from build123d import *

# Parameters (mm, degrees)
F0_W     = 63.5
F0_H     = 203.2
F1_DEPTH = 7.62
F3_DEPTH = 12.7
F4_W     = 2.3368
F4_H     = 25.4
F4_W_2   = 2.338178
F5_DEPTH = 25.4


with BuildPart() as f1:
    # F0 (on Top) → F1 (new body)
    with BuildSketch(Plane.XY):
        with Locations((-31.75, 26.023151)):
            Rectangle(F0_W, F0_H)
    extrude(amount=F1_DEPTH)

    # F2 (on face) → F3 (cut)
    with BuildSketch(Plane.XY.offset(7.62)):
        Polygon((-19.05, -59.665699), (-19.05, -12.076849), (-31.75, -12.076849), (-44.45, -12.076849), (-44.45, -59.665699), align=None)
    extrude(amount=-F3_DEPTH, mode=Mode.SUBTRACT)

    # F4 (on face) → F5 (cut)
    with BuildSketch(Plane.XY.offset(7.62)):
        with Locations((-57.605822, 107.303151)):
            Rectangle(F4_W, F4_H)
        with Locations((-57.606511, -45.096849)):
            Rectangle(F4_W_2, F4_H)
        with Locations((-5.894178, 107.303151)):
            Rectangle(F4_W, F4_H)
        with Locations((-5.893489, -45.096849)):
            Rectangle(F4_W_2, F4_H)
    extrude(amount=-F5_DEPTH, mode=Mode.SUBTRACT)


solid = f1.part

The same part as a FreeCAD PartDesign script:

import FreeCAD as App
import Part
import Sketcher

V = App.Vector
Q = App.Units.Quantity

doc = App.newDocument("Part")
body = doc.addObject("PartDesign::Body", "Body")

# Sketch on XY plane
sketch1 = body.newObject("Sketcher::SketchObject", "Sketch")
sketch1.AttachmentSupport = (doc.getObject("XY_Plane"), [""])
sketch1.MapMode = "FlatFace"
sketch1.addGeometry([
    Part.LineSegment(V(-64, 128, 0), V(-64, -76, 0)),
    Part.LineSegment(V(-64, -76, 0), V(0, -76, 0)),
    Part.LineSegment(V(0, -76, 0), V(0, 128, 0)),
    Part.LineSegment(V(0, 128, 0), V(-64, 128, 0)),
], False)
sketch1.addConstraint([
    Sketcher.Constraint("Coincident", 0, 2, 1, 1),
    Sketcher.Constraint("Coincident", 1, 2, 2, 1),
    Sketcher.Constraint("Coincident", 2, 2, 3, 1),
    Sketcher.Constraint("Coincident", 3, 2, 0, 1),
    Sketcher.Constraint("Vertical", 0),
    Sketcher.Constraint("Horizontal", 1),
    Sketcher.Constraint("Vertical", 2),
    Sketcher.Constraint("Horizontal", 3),
    Sketcher.Constraint("PointOnObject", 1, 2, -2),
    Sketcher.Constraint("DistanceY", 0, 2, 0, 1, Q("8 in")),
    Sketcher.Constraint("DistanceX", 1, 1, 1, 2, Q("2.5 in")),
    Sketcher.Constraint("DistanceY", 0, 2, -1, 1, 75.576849),
])
pad1 = body.newObject("PartDesign::Pad", "Pad")
pad1.Profile = sketch1
pad1.Length = Q("0.3 in")

# Sketch on XY plane
sketch2 = body.newObject("Sketcher::SketchObject", "Sketch001")
sketch2.AttachmentSupport = (doc.getObject("XY_Plane"), [""])
sketch2.MapMode = "FlatFace"
sketch2.AttachmentOffset = App.Placement(V(0, 0, 0.3 * 25.4), App.Rotation())
sketch2.addGeometry([
    Part.LineSegment(V(-19, -60, 0), V(-19, -12, 0)),
    Part.LineSegment(V(-19, -12, 0), V(-44, -12, 0)),
    Part.LineSegment(V(-44, -12, 0), V(-44, -60, 0)),
    Part.LineSegment(V(-44, -60, 0), V(-19, -60, 0)),
], False)
sketch2.addConstraint([
    Sketcher.Constraint("Coincident", 0, 2, 1, 1),
    Sketcher.Constraint("Coincident", 1, 2, 2, 1),
    Sketcher.Constraint("Coincident", 2, 2, 3, 1),
    Sketcher.Constraint("Coincident", 3, 2, 0, 1),
    Sketcher.Constraint("Vertical", 0),
    Sketcher.Constraint("Horizontal", 1),
    Sketcher.Constraint("Vertical", 2),
    Sketcher.Constraint("Horizontal", 3),
    Sketcher.Constraint("DistanceX", 1, 2, 1, 1, Q("1 in")),
    Sketcher.Constraint("DistanceX", 0, 2, -1, 1, Q("0.75 in")),
    Sketcher.Constraint("DistanceY", 0, 1, 0, 2, 47.58885),
    Sketcher.Constraint("DistanceY", 2, 2, -1, 1, 59.665699),
])
pocket1 = body.newObject("PartDesign::Pocket", "Pocket")
pocket1.Profile = sketch2
pocket1.Length = Q("0.5 in")

# Sketch on XY plane
sketch3 = body.newObject("Sketcher::SketchObject", "Sketch002")
sketch3.AttachmentSupport = (doc.getObject("XY_Plane"), [""])
sketch3.MapMode = "FlatFace"
sketch3.AttachmentOffset = App.Placement(V(0, 0, 0.3 * 25.4), App.Rotation())
sketch3.addGeometry([
    Part.LineSegment(V(-58.8, 120, 0), V(-58.8, 94.6, 0)),  # 0
    Part.LineSegment(V(-58.8, 94.6, 0), V(-56.4, 94.6, 0)),  # 1
    Part.LineSegment(V(-56.4, 94.6, 0), V(-56.4, 120, 0)),  # 2
    Part.LineSegment(V(-56.4, 120, 0), V(-58.8, 120, 0)),  # 3
    Part.LineSegment(V(-58.8, -32.4, 0), V(-58.8, -57.8, 0)),  # 4
    Part.LineSegment(V(-58.8, -57.8, 0), V(-56.4, -57.8, 0)),  # 5
    Part.LineSegment(V(-56.4, -57.8, 0), V(-56.4, -32.4, 0)),  # 6
    Part.LineSegment(V(-56.4, -32.4, 0), V(-58.8, -32.4, 0)),  # 7
    Part.LineSegment(V(-7.1, 120, 0), V(-7.1, 94.6, 0)),  # 8
    Part.LineSegment(V(-7.1, 94.6, 0), V(-4.7, 94.6, 0)),  # 9
    Part.LineSegment(V(-4.7, 94.6, 0), V(-4.7, 120, 0)),  # 10
    Part.LineSegment(V(-4.7, 120, 0), V(-7.1, 120, 0)),  # 11
    Part.LineSegment(V(-7.1, -32.4, 0), V(-7.1, -57.8, 0)),  # 12
    Part.LineSegment(V(-7.1, -57.8, 0), V(-4.7, -57.8, 0)),  # 13
    Part.LineSegment(V(-4.7, -57.8, 0), V(-4.7, -32.4, 0)),  # 14
    Part.LineSegment(V(-4.7, -32.4, 0), V(-7.1, -32.4, 0)),  # 15
], False)
sketch3.addConstraint([
    Sketcher.Constraint("Coincident", 0, 2, 1, 1),
    Sketcher.Constraint("Coincident", 1, 2, 2, 1),
    Sketcher.Constraint("Coincident", 2, 2, 3, 1),
    Sketcher.Constraint("Coincident", 3, 2, 0, 1),
    Sketcher.Constraint("Coincident", 4, 2, 5, 1),
    Sketcher.Constraint("Coincident", 5, 2, 6, 1),
    Sketcher.Constraint("Coincident", 6, 2, 7, 1),
    Sketcher.Constraint("Coincident", 7, 2, 4, 1),
    Sketcher.Constraint("Coincident", 8, 2, 9, 1),
    Sketcher.Constraint("Coincident", 9, 2, 10, 1),
    Sketcher.Constraint("Coincident", 10, 2, 11, 1),
    Sketcher.Constraint("Coincident", 11, 2, 8, 1),
    Sketcher.Constraint("Coincident", 12, 2, 13, 1),
    Sketcher.Constraint("Coincident", 13, 2, 14, 1),
    Sketcher.Constraint("Coincident", 14, 2, 15, 1),
    Sketcher.Constraint("Coincident", 15, 2, 12, 1),
    Sketcher.Constraint("Vertical", 0),
    Sketcher.Constraint("Horizontal", 1),
    Sketcher.Constraint("Vertical", 2),
    Sketcher.Constraint("Horizontal", 3),
    Sketcher.Constraint("Vertical", 4),
    Sketcher.Constraint("Horizontal", 5),
    Sketcher.Constraint("Vertical", 6),
    Sketcher.Constraint("Horizontal", 7),
    Sketcher.Constraint("Vertical", 8),
    Sketcher.Constraint("Horizontal", 9),
    Sketcher.Constraint("Vertical", 10),
    Sketcher.Constraint("Horizontal", 11),
    Sketcher.Constraint("Vertical", 12),
    Sketcher.Constraint("Horizontal", 13),
    Sketcher.Constraint("Vertical", 14),
    Sketcher.Constraint("Horizontal", 15),
    Sketcher.Constraint("Horizontal", 1, 2, 8, 2),
    Sketcher.Constraint("Horizontal", 3, 2, 10, 2),
    Sketcher.Constraint("Horizontal", 5, 2, 12, 2),
    Sketcher.Constraint("Horizontal", 7, 2, 14, 2),
    Sketcher.Constraint("Vertical", 2, 2, 5, 2),
    Sketcher.Constraint("Vertical", 11, 2, 12, 2),
    Sketcher.Constraint("Equal", 3, 9),
    Sketcher.Constraint("Equal", 7, 13),
    Sketcher.Constraint("Equal", 2, 4),
    Sketcher.Constraint("DistanceY", 0, 2, 0, 1, Q("1 in")),
    Sketcher.Constraint("DistanceY", 4, 2, 0, 2, Q("6 in")),
    Sketcher.Constraint("DistanceX", 1, 1, 1, 2, Q("0.092 in")),
    Sketcher.Constraint("DistanceX", 4, 2, -1, 1, Q("2.314 in")),
    Sketcher.Constraint("DistanceX", 13, 2, -1, 1, Q("0.186 in")),
    Sketcher.Constraint("DistanceX", 13, 1, 13, 2, 2.338178),
    Sketcher.Constraint("DistanceY", -1, 1, 0, 2, 94.603151),
])
pocket2 = body.newObject("PartDesign::Pocket", "Pocket001")
pocket2.Profile = sketch3
pocket2.Length = Q("1 in")

doc.recompute()
